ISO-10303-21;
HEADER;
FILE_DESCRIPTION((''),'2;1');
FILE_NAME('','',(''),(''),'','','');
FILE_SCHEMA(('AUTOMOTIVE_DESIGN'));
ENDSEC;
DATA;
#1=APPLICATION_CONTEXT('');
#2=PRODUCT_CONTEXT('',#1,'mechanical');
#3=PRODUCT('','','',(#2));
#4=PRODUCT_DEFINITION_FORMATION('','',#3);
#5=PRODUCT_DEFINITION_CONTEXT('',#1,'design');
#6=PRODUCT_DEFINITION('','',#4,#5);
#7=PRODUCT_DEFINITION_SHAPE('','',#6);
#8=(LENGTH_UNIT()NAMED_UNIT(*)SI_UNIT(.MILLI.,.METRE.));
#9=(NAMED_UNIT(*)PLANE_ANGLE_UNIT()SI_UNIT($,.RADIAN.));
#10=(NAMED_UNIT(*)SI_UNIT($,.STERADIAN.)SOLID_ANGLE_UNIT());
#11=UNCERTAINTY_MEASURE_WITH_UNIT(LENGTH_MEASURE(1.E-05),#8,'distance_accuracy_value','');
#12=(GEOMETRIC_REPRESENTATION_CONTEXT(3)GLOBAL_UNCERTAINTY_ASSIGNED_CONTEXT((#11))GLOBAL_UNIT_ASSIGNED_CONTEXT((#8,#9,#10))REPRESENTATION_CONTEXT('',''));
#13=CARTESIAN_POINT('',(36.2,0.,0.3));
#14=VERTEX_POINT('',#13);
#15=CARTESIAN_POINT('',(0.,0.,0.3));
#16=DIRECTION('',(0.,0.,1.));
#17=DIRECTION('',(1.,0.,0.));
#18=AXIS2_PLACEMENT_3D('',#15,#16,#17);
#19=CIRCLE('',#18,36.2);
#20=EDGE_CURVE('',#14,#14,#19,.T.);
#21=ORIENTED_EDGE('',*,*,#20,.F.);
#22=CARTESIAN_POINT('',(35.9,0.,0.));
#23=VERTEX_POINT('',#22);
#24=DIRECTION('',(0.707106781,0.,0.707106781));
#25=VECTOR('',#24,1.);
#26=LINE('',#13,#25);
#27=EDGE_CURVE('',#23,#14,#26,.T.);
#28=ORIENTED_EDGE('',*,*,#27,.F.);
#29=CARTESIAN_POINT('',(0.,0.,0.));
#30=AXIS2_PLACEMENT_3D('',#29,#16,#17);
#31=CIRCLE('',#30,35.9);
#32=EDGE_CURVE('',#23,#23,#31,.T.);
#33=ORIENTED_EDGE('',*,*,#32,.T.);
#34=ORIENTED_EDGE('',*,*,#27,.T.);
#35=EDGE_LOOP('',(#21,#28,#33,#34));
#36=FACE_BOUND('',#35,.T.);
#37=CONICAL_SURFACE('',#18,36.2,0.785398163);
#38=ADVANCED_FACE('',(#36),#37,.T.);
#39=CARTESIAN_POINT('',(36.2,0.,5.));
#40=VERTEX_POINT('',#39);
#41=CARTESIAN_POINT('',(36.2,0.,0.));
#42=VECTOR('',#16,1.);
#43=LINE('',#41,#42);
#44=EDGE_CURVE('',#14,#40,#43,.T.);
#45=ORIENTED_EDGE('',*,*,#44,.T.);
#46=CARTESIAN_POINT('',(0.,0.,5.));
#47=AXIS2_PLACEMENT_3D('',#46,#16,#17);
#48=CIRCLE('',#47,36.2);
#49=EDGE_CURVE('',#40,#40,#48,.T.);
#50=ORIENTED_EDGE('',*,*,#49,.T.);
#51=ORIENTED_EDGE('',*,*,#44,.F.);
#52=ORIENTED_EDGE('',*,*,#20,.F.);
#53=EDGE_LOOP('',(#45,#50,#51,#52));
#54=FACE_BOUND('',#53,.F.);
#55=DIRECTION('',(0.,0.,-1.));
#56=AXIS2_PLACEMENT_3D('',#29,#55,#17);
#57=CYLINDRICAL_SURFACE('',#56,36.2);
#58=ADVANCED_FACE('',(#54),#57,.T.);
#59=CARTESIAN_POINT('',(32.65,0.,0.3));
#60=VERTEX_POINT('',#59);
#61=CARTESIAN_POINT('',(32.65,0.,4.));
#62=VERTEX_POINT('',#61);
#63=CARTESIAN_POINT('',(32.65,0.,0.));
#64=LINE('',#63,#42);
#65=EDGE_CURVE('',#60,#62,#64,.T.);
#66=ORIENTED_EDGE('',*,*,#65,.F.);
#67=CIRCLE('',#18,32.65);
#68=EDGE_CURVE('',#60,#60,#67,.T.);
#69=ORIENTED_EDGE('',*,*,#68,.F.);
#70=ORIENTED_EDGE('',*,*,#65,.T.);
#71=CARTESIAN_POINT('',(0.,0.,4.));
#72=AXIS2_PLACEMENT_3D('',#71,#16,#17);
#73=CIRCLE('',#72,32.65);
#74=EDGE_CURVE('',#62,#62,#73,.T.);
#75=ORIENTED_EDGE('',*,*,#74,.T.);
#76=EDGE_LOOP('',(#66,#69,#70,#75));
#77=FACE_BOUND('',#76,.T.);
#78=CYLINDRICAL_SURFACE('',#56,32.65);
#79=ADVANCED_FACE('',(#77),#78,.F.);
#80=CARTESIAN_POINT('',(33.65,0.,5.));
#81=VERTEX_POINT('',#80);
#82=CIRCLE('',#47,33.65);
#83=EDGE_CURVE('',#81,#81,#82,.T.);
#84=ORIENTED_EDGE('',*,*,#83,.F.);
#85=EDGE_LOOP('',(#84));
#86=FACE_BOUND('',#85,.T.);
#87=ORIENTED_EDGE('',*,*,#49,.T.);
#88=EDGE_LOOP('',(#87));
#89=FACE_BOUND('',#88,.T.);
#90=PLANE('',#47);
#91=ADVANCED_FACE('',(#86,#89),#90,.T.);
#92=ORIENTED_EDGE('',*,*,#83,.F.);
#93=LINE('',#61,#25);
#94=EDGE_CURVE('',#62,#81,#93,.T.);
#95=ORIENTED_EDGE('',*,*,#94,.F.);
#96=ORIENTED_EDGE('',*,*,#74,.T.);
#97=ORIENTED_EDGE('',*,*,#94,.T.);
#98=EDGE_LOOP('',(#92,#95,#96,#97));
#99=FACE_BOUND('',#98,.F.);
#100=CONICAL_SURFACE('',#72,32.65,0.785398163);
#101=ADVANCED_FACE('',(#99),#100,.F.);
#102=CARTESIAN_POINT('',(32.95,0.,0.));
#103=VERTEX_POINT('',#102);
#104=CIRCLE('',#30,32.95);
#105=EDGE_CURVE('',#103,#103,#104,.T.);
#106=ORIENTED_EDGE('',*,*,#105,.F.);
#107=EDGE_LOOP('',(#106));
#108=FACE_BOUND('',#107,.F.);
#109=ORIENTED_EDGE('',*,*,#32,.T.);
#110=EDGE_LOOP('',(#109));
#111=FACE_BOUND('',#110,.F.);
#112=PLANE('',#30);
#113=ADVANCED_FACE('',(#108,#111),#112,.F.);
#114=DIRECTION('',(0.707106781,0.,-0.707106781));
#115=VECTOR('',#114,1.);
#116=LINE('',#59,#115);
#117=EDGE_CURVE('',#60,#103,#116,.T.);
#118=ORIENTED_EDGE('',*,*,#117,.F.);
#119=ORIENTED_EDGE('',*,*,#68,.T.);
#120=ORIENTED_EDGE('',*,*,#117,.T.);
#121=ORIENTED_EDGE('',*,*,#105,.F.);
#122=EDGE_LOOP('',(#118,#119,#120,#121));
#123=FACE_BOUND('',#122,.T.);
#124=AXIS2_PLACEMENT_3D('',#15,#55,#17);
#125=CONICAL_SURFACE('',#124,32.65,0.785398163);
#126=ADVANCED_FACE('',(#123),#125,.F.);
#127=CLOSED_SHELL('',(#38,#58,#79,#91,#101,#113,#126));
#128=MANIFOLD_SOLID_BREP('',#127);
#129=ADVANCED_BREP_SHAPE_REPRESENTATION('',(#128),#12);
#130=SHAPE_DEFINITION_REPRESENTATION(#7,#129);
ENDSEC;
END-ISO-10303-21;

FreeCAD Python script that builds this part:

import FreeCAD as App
import Part
import Sketcher
from FreeCAD import Vector


def edges_at(feature, points):
    """Names of the edges that pass closest to the given points."""
    edges = feature.Shape.Edges
    near = lambda p: min(range(len(edges)), key=lambda i: edges[i].distToShape(Part.Vertex(*p))[0])
    return sorted({f"Edge{near(p) + 1}" for p in points})

doc = App.newDocument("Part")
params = doc.addObject("Spreadsheet::Sheet", "Params")
for row, (alias, value) in enumerate([
    ("sketch1_diameter", "72.4 mm"),
    ("sketch1_diameter2", "65.3 mm"),
    ("pad1_length", "5 mm"),
    ("chamfer_size", "1 mm"),
    ("chamfer2_size", "0.3 mm"),
], start=1):
    params.set(f"A{row}", alias)
    params.set(f"B{row}", "=" + value)
    params.setAlias(f"B{row}", alias)

body = doc.addObject("PartDesign::Body", "Body")

# Sketch on XY plane
sketch1 = body.newObject("Sketcher::SketchObject", "Sketch")
sketch1.AttachmentSupport = (doc.getObject("XY_Plane"), [""])
sketch1.MapMode = "FlatFace"
sketch1.addGeometry(Part.Circle(Vector(0, 0, 0), Vector(0, 0, 1), 36), False)
sketch1.addGeometry(Part.Circle(Vector(0, 0, 0), Vector(0, 0, 1), 33), False)
sketch1.addConstraint(Sketcher.Constraint("Coincident", 0, 3, -1, 1))
sketch1.addConstraint(Sketcher.Constraint("Coincident", 1, 3, -1, 1))
sketch1.addConstraint(Sketcher.Constraint("Diameter", 0, 72.4))
sketch1.addConstraint(Sketcher.Constraint("Diameter", 1, 65.3))
sketch1.setExpression("Constraints[2]", "Params.sketch1_diameter")
sketch1.setExpression("Constraints[3]", "Params.sketch1_diameter2")
pad1 = body.newObject("PartDesign::Pad", "Pad")
pad1.Profile = sketch1
pad1.setExpression("Length", "Params.pad1_length")
doc.recompute()

chamfer = body.newObject("PartDesign::Chamfer", "Chamfer")
chamfer.Base = (pad1, edges_at(pad1, [(-32.65, 0, 5)]))
chamfer.setExpression("Size", "Params.chamfer_size")
doc.recompute()

chamfer2 = body.newObject("PartDesign::Chamfer", "Chamfer001")
chamfer2.Base = (chamfer, edges_at(chamfer, [(-36.2, 0, 0), (-32.65, 0, 0)]))
chamfer2.setExpression("Size", "Params.chamfer2_size")

doc.recompute()
